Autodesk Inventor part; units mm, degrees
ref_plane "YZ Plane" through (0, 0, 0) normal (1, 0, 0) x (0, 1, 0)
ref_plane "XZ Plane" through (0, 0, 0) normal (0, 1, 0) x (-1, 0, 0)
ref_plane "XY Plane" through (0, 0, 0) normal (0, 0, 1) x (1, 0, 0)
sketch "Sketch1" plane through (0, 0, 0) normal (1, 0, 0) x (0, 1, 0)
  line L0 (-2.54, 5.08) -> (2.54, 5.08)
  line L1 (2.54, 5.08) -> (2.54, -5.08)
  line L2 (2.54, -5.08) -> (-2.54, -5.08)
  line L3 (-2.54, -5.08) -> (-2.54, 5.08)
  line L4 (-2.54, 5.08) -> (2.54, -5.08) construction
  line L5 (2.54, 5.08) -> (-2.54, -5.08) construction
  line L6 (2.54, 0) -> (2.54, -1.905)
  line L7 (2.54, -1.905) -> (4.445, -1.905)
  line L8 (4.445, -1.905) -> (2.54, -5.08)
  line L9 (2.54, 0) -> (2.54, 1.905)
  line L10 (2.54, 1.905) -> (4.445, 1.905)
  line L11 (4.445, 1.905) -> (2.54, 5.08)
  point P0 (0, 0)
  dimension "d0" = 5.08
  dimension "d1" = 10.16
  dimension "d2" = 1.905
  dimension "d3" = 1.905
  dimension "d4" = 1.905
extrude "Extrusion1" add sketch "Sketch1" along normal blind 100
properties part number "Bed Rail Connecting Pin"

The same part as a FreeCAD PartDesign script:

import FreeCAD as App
import Part
import Sketcher
Q = App.Units.Quantity

doc = App.newDocument("Part")
body = doc.addObject("PartDesign::Body", "Body")

sketch1 = doc.addObject("Sketcher::SketchObject", "Sketch")
body.addObject(sketch1)
sketch1.AttachmentSupport = (doc.YZ_Plane, [""])
sketch1.MapMode = "FlatFace"
sketch1.addGeometry(Part.LineSegment(App.Vector(2.5, 5.1, 0), App.Vector(-2.5, 5.1, 0)), False)
sketch1.addGeometry(Part.LineSegment(App.Vector(-2.5, 5.1, 0), App.Vector(-2.5, -5.1, 0)), False)
sketch1.addGeometry(Part.LineSegment(App.Vector(-2.5, -5.1, 0), App.Vector(2.5, -5.1, 0)), False)
sketch1.addGeometry(Part.LineSegment(App.Vector(2.5, -5.1, 0), App.Vector(4.4, -1.9, 0)), False)
sketch1.addGeometry(Part.LineSegment(App.Vector(4.4, -1.9, 0), App.Vector(2.5, -1.9, 0)), False)
sketch1.addGeometry(Part.LineSegment(App.Vector(2.5, -1.9, 0), App.Vector(2.5, 1.9, 0)), False)
sketch1.addGeometry(Part.LineSegment(App.Vector(2.5, 1.9, 0), App.Vector(4.4, 1.9, 0)), False)
sketch1.addGeometry(Part.LineSegment(App.Vector(4.4, 1.9, 0), App.Vector(2.5, 5.1, 0)), False)
sketch1.addConstraint(Sketcher.Constraint("Coincident", 0, 2, 1, 1))
sketch1.addConstraint(Sketcher.Constraint("Coincident", 1, 2, 2, 1))
sketch1.addConstraint(Sketcher.Constraint("Coincident", 2, 2, 3, 1))
sketch1.addConstraint(Sketcher.Constraint("Coincident", 3, 2, 4, 1))
sketch1.addConstraint(Sketcher.Constraint("Coincident", 4, 2, 5, 1))
sketch1.addConstraint(Sketcher.Constraint("Coincident", 5, 2, 6, 1))
sketch1.addConstraint(Sketcher.Constraint("Coincident", 6, 2, 7, 1))
sketch1.addConstraint(Sketcher.Constraint("Coincident", 7, 2, 0, 1))
sketch1.addConstraint(Sketcher.Constraint("Horizontal", 0))
sketch1.addConstraint(Sketcher.Constraint("Vertical", 1))
sketch1.addConstraint(Sketcher.Constraint("Horizontal", 2))
sketch1.addConstraint(Sketcher.Constraint("Horizontal", 4))
sketch1.addConstraint(Sketcher.Constraint("Vertical", 5))
sketch1.addConstraint(Sketcher.Constraint("Horizontal", 6))
sketch1.addConstraint(Sketcher.Constraint("Symmetric", 0, 2, 2, 2, -1, 1))
sketch1.addConstraint(Sketcher.Constraint("Symmetric", 3, 2, 6, 2, -1))
sketch1.addConstraint(Sketcher.Constraint("Vertical", 2, 2, 4, 2))
sketch1.addConstraint(Sketcher.Constraint("Vertical", 5, 2, 7, 2))
sketch1.addConstraint(Sketcher.Constraint("DistanceX", 0, 2, 0, 1, Q("0.2 in")))
sketch1.addConstraint(Sketcher.Constraint("DistanceY", 1, 2, 1, 1, Q("0.4 in")))
sketch1.addConstraint(Sketcher.Constraint("DistanceX", 4, 2, 4, 1, Q("0.075 in")))
sketch1.addConstraint(Sketcher.Constraint("DistanceY", 3, 2, -1, 1, Q("0.075 in")))
pad1 = doc.addObject("PartDesign::Pad", "Pad")
body.addObject(pad1)
pad1.Profile = sketch1
pad1.Length = Q("3.9370079 in")

doc.recompute()
